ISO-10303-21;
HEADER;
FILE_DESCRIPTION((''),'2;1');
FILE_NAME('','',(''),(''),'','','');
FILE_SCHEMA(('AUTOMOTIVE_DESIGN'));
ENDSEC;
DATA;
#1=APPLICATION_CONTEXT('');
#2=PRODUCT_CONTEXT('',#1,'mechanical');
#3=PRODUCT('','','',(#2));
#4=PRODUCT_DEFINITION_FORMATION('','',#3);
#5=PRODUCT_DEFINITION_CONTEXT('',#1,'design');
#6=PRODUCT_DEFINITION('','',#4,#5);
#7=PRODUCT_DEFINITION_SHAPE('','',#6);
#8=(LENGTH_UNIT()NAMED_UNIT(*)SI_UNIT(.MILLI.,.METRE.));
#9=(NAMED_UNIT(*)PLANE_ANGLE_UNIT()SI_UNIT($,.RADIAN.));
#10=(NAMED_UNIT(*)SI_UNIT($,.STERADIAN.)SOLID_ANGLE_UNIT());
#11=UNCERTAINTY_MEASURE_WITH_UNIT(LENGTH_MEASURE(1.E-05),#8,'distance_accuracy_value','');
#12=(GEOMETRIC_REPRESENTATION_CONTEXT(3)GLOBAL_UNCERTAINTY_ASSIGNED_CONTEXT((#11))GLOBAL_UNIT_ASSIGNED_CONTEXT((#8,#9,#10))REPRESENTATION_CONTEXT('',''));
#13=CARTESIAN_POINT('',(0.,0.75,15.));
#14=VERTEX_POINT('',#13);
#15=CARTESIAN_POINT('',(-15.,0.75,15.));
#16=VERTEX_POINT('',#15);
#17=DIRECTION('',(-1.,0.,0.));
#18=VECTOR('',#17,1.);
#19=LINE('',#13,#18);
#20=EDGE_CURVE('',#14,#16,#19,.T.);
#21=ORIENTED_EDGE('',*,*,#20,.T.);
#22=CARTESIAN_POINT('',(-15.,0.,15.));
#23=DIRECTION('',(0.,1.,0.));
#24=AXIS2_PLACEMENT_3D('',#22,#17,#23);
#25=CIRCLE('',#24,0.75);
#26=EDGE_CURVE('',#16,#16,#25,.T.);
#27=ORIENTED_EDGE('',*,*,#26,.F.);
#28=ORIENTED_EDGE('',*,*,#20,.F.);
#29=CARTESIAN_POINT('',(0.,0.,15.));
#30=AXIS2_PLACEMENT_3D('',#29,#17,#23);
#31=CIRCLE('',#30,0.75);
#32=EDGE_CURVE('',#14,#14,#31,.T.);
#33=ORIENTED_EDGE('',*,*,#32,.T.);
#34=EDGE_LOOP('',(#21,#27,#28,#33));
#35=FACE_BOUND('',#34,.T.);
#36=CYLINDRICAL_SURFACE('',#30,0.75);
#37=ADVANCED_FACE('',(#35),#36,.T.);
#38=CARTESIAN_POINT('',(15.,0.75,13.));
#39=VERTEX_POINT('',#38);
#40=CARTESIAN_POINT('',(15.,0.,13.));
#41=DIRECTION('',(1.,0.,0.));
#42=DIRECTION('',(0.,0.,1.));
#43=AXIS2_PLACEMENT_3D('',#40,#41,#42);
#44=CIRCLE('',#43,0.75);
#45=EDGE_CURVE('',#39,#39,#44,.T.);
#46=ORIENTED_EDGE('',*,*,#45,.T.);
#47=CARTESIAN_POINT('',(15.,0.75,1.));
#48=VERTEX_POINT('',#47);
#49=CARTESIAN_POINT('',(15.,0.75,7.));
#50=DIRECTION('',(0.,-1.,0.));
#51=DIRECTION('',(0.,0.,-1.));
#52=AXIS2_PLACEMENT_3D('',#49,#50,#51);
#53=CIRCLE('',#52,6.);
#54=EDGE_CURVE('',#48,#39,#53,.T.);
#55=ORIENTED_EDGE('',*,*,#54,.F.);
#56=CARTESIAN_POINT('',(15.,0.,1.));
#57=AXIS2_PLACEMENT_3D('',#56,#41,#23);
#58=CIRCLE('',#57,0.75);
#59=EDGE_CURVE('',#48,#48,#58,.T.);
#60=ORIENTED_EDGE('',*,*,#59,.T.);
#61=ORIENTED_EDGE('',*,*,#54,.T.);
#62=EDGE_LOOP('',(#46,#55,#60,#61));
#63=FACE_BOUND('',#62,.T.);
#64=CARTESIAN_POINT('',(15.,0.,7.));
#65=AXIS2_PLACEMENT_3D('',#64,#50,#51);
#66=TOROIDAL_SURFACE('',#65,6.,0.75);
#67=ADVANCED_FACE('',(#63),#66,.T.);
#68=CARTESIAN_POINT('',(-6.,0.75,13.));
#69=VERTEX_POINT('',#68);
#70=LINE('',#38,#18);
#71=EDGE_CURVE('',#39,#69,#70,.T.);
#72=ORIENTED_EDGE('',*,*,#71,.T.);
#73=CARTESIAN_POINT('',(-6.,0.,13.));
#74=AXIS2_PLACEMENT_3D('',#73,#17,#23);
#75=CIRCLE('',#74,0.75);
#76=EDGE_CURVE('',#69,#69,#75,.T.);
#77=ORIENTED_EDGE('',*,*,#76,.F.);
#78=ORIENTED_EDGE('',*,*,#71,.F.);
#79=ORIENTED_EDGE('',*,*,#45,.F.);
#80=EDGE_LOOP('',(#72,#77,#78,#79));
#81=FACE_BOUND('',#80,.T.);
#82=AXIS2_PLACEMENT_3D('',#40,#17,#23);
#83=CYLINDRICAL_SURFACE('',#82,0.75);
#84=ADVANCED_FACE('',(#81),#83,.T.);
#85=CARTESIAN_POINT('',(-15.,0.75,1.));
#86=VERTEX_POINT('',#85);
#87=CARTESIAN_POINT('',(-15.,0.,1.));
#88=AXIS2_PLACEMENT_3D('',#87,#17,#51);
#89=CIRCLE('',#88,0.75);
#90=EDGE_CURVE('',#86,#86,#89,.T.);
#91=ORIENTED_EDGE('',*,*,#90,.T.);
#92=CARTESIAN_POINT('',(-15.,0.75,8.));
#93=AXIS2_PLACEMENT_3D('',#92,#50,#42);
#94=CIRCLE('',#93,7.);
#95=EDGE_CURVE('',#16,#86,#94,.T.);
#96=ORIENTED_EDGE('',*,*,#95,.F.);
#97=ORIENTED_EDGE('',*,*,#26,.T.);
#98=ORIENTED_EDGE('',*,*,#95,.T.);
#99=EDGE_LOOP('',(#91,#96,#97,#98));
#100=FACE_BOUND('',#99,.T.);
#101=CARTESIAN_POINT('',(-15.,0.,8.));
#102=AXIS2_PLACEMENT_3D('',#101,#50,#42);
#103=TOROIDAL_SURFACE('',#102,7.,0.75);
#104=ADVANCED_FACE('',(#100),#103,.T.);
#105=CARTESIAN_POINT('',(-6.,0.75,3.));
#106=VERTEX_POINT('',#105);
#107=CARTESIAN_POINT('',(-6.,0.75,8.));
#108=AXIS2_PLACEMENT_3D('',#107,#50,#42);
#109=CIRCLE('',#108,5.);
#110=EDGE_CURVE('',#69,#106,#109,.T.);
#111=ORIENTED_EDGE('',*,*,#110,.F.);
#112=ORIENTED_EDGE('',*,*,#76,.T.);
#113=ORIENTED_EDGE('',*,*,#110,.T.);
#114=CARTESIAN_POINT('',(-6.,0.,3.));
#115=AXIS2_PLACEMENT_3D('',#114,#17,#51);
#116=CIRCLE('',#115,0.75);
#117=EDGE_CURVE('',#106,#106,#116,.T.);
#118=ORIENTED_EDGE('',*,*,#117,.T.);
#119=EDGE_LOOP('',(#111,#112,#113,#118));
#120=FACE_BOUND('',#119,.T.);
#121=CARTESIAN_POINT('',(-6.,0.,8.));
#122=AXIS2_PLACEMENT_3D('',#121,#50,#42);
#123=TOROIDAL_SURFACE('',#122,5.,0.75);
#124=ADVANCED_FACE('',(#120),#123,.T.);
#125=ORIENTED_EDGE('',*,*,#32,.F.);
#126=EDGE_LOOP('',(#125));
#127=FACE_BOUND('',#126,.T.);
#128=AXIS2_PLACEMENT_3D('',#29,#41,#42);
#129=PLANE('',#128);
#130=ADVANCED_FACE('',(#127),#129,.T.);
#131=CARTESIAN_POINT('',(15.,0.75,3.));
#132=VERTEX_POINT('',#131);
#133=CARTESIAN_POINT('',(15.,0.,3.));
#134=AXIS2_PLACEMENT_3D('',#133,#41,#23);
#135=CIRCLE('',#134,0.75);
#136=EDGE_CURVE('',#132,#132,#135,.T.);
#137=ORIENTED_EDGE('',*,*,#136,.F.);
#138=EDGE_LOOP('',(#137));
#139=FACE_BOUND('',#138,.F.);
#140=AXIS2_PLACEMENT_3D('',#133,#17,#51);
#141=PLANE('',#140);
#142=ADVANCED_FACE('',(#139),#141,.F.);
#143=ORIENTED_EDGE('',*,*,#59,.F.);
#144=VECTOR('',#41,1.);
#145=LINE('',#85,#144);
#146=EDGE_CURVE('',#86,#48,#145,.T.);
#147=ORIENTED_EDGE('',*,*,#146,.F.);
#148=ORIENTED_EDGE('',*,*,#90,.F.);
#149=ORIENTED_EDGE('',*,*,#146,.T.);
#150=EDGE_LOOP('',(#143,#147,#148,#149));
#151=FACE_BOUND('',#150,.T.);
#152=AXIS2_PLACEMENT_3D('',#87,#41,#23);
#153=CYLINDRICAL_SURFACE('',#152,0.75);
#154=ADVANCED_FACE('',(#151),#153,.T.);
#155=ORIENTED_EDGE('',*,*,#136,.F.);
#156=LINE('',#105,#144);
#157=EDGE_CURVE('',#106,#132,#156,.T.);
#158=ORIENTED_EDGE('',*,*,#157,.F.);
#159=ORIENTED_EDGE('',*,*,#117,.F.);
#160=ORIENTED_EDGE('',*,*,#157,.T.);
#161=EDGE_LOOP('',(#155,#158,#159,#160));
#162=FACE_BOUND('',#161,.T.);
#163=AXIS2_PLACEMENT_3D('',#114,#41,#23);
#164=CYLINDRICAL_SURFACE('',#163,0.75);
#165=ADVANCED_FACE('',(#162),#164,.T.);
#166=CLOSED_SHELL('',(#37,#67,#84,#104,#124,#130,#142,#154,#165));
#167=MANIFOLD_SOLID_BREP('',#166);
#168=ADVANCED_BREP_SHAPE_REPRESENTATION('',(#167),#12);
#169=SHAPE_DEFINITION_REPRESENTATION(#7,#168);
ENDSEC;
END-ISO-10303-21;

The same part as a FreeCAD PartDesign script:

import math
import FreeCAD as App
import Part
import Sketcher

V = App.Vector

doc = App.newDocument("Part")
body = doc.addObject("PartDesign::Body", "Body")

# Sketch on YZ plane
sketch1 = doc.addObject("Sketcher::SketchObject", "Sketch")
body.addObject(sketch1)
sketch1.AttachmentSupport = (doc.YZ_Plane, [""])
sketch1.MapMode = "FlatFace"
sketch1.addGeometry(Part.Circle(V(0, 15, 0), V(0, 0, 1), 0.8), False)
sketch1.addConstraint([
    Sketcher.Constraint("PointOnObject", 0, 3, -2),
    Sketcher.Constraint("Diameter", 0, 1.5),
    Sketcher.Constraint("DistanceY", -1, 1, 0, 3, 15.0),
])

# Sketch on XZ plane
sketch2 = doc.addObject("Sketcher::SketchObject", "Sketch001")
body.addObject(sketch2)
sketch2.AttachmentSupport = (doc.XZ_Plane, [""])
sketch2.MapMode = "FlatFace"
sketch2.addGeometry([
    Part.LineSegment(V(0, 15, 0), V(-15, 15, 0)),  # 0
    Part.ArcOfCircle(Part.Circle(V(-15, 8, 0), V(0, 0, 1), 7), math.radians(90), math.radians(270)),  # 1
    Part.LineSegment(V(-15, 1, 0), V(15, 1, 0)),  # 2
    Part.ArcOfCircle(Part.Circle(V(15, 7, 0), V(0, 0, 1), 6), math.radians(-90), math.radians(90)),  # 3
    Part.LineSegment(V(15, 13, 0), V(-6, 13, 0)),  # 4
    Part.ArcOfCircle(Part.Circle(V(-6, 8, 0), V(0, 0, 1), 5), math.radians(90), math.radians(270)),  # 5
    Part.LineSegment(V(-6, 3, 0), V(15, 3, 0)),  # 6
], False)
sketch2.addConstraint([
    Sketcher.Constraint("Tangent", 0, 2, 1, 1),
    Sketcher.Constraint("Tangent", 1, 2, 2, 1),
    Sketcher.Constraint("Tangent", 2, 2, 3, 1),
    Sketcher.Constraint("Tangent", 3, 2, 4, 1),
    Sketcher.Constraint("Tangent", 4, 2, 5, 1),
    Sketcher.Constraint("Tangent", 5, 2, 6, 1),
    Sketcher.Constraint("Horizontal", 0),
    Sketcher.Constraint("Horizontal", 2),
    Sketcher.Constraint("Horizontal", 4),
    Sketcher.Constraint("Horizontal", 6),
    Sketcher.Constraint("PointOnObject", 0, 1, -2),
    Sketcher.Constraint("Horizontal", 1, 3, 5, 3),
    Sketcher.Constraint("Vertical", 3, 2, 6, 2),
    Sketcher.Constraint("Radius", 1, 7.0),
    Sketcher.Constraint("Radius", 3, 6.0),
    Sketcher.Constraint("DistanceX", 0, 2, 0, 1, 15.0),
    Sketcher.Constraint("DistanceX", 2, 1, 2, 2, 30.0),
    Sketcher.Constraint("DistanceX", 4, 2, 4, 1, 21.0),
    Sketcher.Constraint("DistanceY", -1, 1, 1, 3, 8.0),
])
doc.recompute()

additivepipe = doc.addObject("PartDesign::AdditivePipe", "AdditivePipe")
body.addObject(additivepipe)
additivepipe.Profile = sketch1
additivepipe.Spine = (sketch2, ["Edge1", "Edge2", "Edge3", "Edge4", "Edge5", "Edge6", "Edge7"])

doc.recompute()
